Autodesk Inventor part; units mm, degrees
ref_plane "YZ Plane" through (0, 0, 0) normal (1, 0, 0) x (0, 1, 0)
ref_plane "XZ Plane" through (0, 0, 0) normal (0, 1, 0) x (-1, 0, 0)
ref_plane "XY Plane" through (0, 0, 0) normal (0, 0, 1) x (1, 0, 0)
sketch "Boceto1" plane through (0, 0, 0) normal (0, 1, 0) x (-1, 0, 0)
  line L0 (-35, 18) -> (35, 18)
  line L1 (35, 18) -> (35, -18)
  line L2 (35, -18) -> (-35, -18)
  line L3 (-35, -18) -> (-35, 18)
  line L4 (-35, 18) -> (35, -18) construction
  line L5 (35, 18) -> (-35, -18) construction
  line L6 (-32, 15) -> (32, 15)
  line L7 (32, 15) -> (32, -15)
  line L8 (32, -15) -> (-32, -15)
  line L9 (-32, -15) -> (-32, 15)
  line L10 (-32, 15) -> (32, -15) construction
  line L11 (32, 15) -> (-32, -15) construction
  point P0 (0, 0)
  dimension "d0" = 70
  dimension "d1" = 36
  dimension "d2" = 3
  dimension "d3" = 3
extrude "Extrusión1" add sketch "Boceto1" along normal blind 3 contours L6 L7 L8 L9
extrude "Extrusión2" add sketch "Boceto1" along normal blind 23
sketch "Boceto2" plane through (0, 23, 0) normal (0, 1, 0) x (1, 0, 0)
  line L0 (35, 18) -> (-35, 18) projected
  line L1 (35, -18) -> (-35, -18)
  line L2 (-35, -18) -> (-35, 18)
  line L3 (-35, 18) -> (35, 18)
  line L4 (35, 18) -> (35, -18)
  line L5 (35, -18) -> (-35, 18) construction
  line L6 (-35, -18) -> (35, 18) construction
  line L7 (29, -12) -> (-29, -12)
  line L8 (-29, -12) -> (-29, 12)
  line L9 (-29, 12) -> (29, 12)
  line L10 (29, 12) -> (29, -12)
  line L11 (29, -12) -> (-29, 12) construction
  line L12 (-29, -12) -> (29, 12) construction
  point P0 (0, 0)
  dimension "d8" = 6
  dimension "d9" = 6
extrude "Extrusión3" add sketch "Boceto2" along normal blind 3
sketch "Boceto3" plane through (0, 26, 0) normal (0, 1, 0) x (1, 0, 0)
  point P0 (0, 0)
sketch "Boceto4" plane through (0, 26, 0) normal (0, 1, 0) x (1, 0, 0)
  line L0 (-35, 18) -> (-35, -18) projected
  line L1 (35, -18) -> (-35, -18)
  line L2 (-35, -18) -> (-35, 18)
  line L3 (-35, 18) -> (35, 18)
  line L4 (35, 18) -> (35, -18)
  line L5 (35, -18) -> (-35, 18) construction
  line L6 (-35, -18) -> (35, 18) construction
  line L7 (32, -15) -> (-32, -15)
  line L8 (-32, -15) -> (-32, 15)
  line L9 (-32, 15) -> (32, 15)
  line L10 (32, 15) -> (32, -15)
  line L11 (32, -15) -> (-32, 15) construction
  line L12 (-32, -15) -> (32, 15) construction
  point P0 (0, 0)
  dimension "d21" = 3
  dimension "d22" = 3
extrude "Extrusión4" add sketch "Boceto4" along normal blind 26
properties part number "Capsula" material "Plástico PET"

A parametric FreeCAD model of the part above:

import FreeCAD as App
import Part
import Sketcher

V = App.Vector


def add_polygon(sketch, points):
    """Adds a closed chain of lines whose ends are joined by coincident constraints."""
    first, n = sketch.GeometryCount, len(points)
    for a, b in zip(points, points[1:] + points[:1]):
        sketch.addGeometry(Part.LineSegment(App.Vector(*a, 0), App.Vector(*b, 0)), False)
    for i in range(n):
        sketch.addConstraint(Sketcher.Constraint("Coincident", first + i, 2, first + (i + 1) % n, 1))

doc = App.newDocument("Part")
params = doc.addObject("Spreadsheet::Sheet", "Params")
for row, (alias, value) in enumerate([
    ("sketch1_width", "64 mm"),
    ("sketch1_height", "30 mm"),
    ("pad1_length", "3 mm"),
    ("sketch2_width", "70 mm"),
    ("sketch2_height", "36 mm"),
    ("pad2_length", "23 mm"),
    ("sketch3_width", "70 mm"),
    ("sketch3_height", "36 mm"),
    ("pad3_length", "3 mm"),
    ("sketch4_width", "70 mm"),
    ("sketch4_height", "36 mm"),
    ("pad4_length", "26 mm"),
], start=1):
    params.set(f"A{row}", alias)
    params.set(f"B{row}", "=" + value)
    params.setAlias(f"B{row}", alias)

body = doc.addObject("PartDesign::Body", "Body")

# Sketch on XZ plane
sketch1 = body.newObject("Sketcher::SketchObject", "Sketch")
sketch1.AttachmentSupport = (doc.getObject("XZ_Plane"), [""])
sketch1.MapMode = "FlatFace"
add_polygon(sketch1, [(-32, 15), (32, 15), (32, -15), (-32, -15)])  # lines 0-3
sketch1.addConstraint([
    Sketcher.Constraint("Horizontal", 0),
    Sketcher.Constraint("Vertical", 1),
    Sketcher.Constraint("Horizontal", 2),
    Sketcher.Constraint("Vertical", 3),
    Sketcher.Constraint("Symmetric", 0, 2, 2, 2, -1, 1),
    Sketcher.Constraint("DistanceX", 0, 1, 0, 2, 64.0),
    Sketcher.Constraint("DistanceY", 1, 2, 1, 1, 30.0),
])
sketch1.setExpression("Constraints[9]", "Params.sketch1_width")
sketch1.setExpression("Constraints[10]", "Params.sketch1_height")
pad1 = body.newObject("PartDesign::Pad", "Pad")
pad1.Profile = sketch1
pad1.setExpression("Length", "Params.pad1_length")
pad1.Reversed = True

# Sketch on XZ plane
sketch2 = body.newObject("Sketcher::SketchObject", "Sketch001")
sketch2.AttachmentSupport = (doc.getObject("XZ_Plane"), [""])
sketch2.MapMode = "FlatFace"
add_polygon(sketch2, [(-35, 18), (35, 18), (35, -18), (-35, -18)])  # lines 0-3
add_polygon(sketch2, [(32, -15), (32, 15), (-32, 15), (-32, -15)])  # lines 4-7
sketch2.addConstraint([
    Sketcher.Constraint("Horizontal", 0),
    Sketcher.Constraint("Vertical", 1),
    Sketcher.Constraint("Horizontal", 2),
    Sketcher.Constraint("Vertical", 3),
    Sketcher.Constraint("Vertical", 4),
    Sketcher.Constraint("Horizontal", 5),
    Sketcher.Constraint("Vertical", 6),
    Sketcher.Constraint("Horizontal", 7),
    Sketcher.Constraint("Symmetric", 0, 2, 2, 2, -1, 1),
    Sketcher.Constraint("Symmetric", 4, 2, 6, 2, -1, 1),
    Sketcher.Constraint("DistanceX", 0, 1, 0, 2, 70.0),
    Sketcher.Constraint("DistanceY", 1, 2, 1, 1, 36.0),
    Sketcher.Constraint("DistanceX", 4, 2, 0, 2, 3.0),
    Sketcher.Constraint("DistanceY", 4, 2, 0, 2, 3.0),
])
sketch2.setExpression("Constraints[18]", "Params.sketch2_width")
sketch2.setExpression("Constraints[19]", "Params.sketch2_height")
pad2 = body.newObject("PartDesign::Pad", "Pad001")
pad2.Profile = sketch2
pad2.setExpression("Length", "Params.pad2_length")
pad2.Reversed = True

# Sketch on XZ plane
sketch3 = body.newObject("Sketcher::SketchObject", "Sketch002")
sketch3.AttachmentSupport = (doc.getObject("XZ_Plane"), [""])
sketch3.MapMode = "FlatFace"
sketch3.AttachmentOffset = App.Placement(V(0, 0, -23), App.Rotation())
add_polygon(sketch3, [(35, 18), (35, -18), (-35, -18), (-35, 18)])  # lines 0-3
add_polygon(sketch3, [(29, -12), (29, 12), (-29, 12), (-29, -12)])  # lines 4-7
sketch3.addConstraint([
    Sketcher.Constraint("Vertical", 0),
    Sketcher.Constraint("Horizontal", 1),
    Sketcher.Constraint("Vertical", 2),
    Sketcher.Constraint("Horizontal", 3),
    Sketcher.Constraint("Vertical", 4),
    Sketcher.Constraint("Horizontal", 5),
    Sketcher.Constraint("Vertical", 6),
    Sketcher.Constraint("Horizontal", 7),
    Sketcher.Constraint("Symmetric", 0, 2, 2, 2, -1, 1),
    Sketcher.Constraint("Symmetric", 4, 2, 6, 2, -1, 1),
    Sketcher.Constraint("DistanceX", 4, 2, 3, 2, 6.0),
    Sketcher.Constraint("DistanceY", 4, 2, 3, 2, 6.0),
    Sketcher.Constraint("DistanceX", 1, 2, 1, 1, 70.0),
    Sketcher.Constraint("DistanceY", 0, 2, 0, 1, 36.0),
])
sketch3.setExpression("Constraints[20]", "Params.sketch3_width")
sketch3.setExpression("Constraints[21]", "Params.sketch3_height")
pad3 = body.newObject("PartDesign::Pad", "Pad002")
pad3.Profile = sketch3
pad3.setExpression("Length", "Params.pad3_length")
pad3.Reversed = True

# Sketch on XZ plane
sketch4 = body.newObject("Sketcher::SketchObject", "Sketch003")
sketch4.AttachmentSupport = (doc.getObject("XZ_Plane"), [""])
sketch4.MapMode = "FlatFace"
sketch4.AttachmentOffset = App.Placement(V(0, 0, -26), App.Rotation())
add_polygon(sketch4, [(35, -18), (-35, -18), (-35, 18), (35, 18)])  # lines 0-3
add_polygon(sketch4, [(32, -15), (32, 15), (-32, 15), (-32, -15)])  # lines 4-7
sketch4.addConstraint([
    Sketcher.Constraint("Horizontal", 0),
    Sketcher.Constraint("Vertical", 1),
    Sketcher.Constraint("Horizontal", 2),
    Sketcher.Constraint("Vertical", 3),
    Sketcher.Constraint("Vertical", 4),
    Sketcher.Constraint("Horizontal", 5),
    Sketcher.Constraint("Vertical", 6),
    Sketcher.Constraint("Horizontal", 7),
    Sketcher.Constraint("Symmetric", 0, 2, 2, 2, -1, 1),
    Sketcher.Constraint("Symmetric", 4, 2, 6, 2, -1, 1),
    Sketcher.Constraint("DistanceX", 4, 2, 2, 2, 3.0),
    Sketcher.Constraint("DistanceY", 4, 2, 2, 2, 3.0),
    Sketcher.Constraint("DistanceX", 0, 2, 0, 1, 70.0),
    Sketcher.Constraint("DistanceY", 1, 1, 1, 2, 36.0),
])
sketch4.setExpression("Constraints[20]", "Params.sketch4_width")
sketch4.setExpression("Constraints[21]", "Params.sketch4_height")
pad4 = body.newObject("PartDesign::Pad", "Pad003")
pad4.Profile = sketch4
pad4.setExpression("Length", "Params.pad4_length")
pad4.Reversed = True

doc.recompute()
